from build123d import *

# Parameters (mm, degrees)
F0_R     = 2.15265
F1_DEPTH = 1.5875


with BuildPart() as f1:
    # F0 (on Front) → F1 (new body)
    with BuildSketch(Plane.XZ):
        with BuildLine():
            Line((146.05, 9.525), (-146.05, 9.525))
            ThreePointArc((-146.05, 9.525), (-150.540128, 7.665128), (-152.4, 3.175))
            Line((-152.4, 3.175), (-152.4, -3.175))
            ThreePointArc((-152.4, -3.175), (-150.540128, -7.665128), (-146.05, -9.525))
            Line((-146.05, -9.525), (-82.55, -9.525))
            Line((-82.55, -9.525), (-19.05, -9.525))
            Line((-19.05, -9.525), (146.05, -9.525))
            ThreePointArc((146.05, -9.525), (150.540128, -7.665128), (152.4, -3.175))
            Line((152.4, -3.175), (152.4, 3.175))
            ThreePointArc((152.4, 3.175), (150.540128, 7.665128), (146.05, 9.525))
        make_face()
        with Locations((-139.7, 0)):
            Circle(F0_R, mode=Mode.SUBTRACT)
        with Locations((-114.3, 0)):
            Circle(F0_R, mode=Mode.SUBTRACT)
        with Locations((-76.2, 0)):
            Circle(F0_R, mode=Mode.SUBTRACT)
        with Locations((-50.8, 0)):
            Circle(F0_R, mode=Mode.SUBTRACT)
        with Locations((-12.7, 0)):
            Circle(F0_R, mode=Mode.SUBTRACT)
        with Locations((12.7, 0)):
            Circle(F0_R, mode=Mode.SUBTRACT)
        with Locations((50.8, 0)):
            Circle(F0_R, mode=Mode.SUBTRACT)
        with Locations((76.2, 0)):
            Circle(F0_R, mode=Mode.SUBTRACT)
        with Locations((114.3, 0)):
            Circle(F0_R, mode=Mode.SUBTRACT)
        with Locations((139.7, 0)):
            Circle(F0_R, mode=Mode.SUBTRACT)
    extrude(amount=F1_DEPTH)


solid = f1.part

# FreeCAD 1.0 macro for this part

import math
import FreeCAD as App
import Part
import Sketcher
Q = App.Units.Quantity

doc = App.newDocument("Part")
body = doc.addObject("PartDesign::Body", "Body")

# Sketch on XZ plane
sketch1 = body.newObject("Sketcher::SketchObject", "Sketch")
sketch1.AttachmentSupport = (doc.getObject("XZ_Plane"), [""])
sketch1.MapMode = "FlatFace"
sketch1.addGeometry(Part.LineSegment(App.Vector(146.1, 9.5, 0), App.Vector(-146.1, 9.5, 0)), False)
sketch1.addGeometry(Part.ArcOfCircle(Part.Circle(App.Vector(-146, 3.2, 0), App.Vector(0, 0, 1), 6.4), math.radians(90), math.radians(180)), False)
sketch1.addGeometry(Part.LineSegment(App.Vector(-152.4, 3.2, 0), App.Vector(-152.4, -3.2, 0)), False)
sketch1.addGeometry(Part.ArcOfCircle(Part.Circle(App.Vector(-146, -3.2, 0), App.Vector(0, 0, 1), 6.4), math.radians(-180), math.radians(-90)), False)
sketch1.addGeometry(Part.LineSegment(App.Vector(-146.1, -9.5, 0), App.Vector(146.1, -9.5, 0)), False)
sketch1.addGeometry(Part.ArcOfCircle(Part.Circle(App.Vector(146, -3.2, 0), App.Vector(0, 0, 1), 6.4), math.radians(-90), math.radians(0)), False)
sketch1.addGeometry(Part.LineSegment(App.Vector(152.4, -3.2, 0), App.Vector(152.4, 3.2, 0)), False)
sketch1.addGeometry(Part.ArcOfCircle(Part.Circle(App.Vector(146, 3.2, 0), App.Vector(0, 0, 1), 6.4), math.radians(0), math.radians(90)), False)
sketch1.addGeometry(Part.Circle(App.Vector(-139.7, 0, 0), App.Vector(0, 0, 1), 2.2), False)
sketch1.addGeometry(Part.Circle(App.Vector(-114.3, 0, 0), App.Vector(0, 0, 1), 2.2), False)
sketch1.addGeometry(Part.Circle(App.Vector(-76.2, 0, 0), App.Vector(0, 0, 1), 2.2), False)
sketch1.addGeometry(Part.Circle(App.Vector(-50.8, 0, 0), App.Vector(0, 0, 1), 2.2), False)
sketch1.addGeometry(Part.Circle(App.Vector(-12.7, 0, 0), App.Vector(0, 0, 1), 2.2), False)
sketch1.addGeometry(Part.Circle(App.Vector(12.7, 0, 0), App.Vector(0, 0, 1), 2.2), False)
sketch1.addGeometry(Part.Circle(App.Vector(50.8, 0, 0), App.Vector(0, 0, 1), 2.2), False)
sketch1.addGeometry(Part.Circle(App.Vector(76.2, 0, 0), App.Vector(0, 0, 1), 2.2), False)
sketch1.addGeometry(Part.Circle(App.Vector(114.3, 0, 0), App.Vector(0, 0, 1), 2.2), False)
sketch1.addGeometry(Part.Circle(App.Vector(139.7, 0, 0), App.Vector(0, 0, 1), 2.2), False)
sketch1.addConstraint(Sketcher.Constraint("Tangent", 0, 2, 1, 1))
sketch1.addConstraint(Sketcher.Constraint("Tangent", 1, 2, 2, 1))
sketch1.addConstraint(Sketcher.Constraint("Tangent", 2, 2, 3, 1))
sketch1.addConstraint(Sketcher.Constraint("Tangent", 3, 2, 4, 1))
sketch1.addConstraint(Sketcher.Constraint("Tangent", 4, 2, 5, 1))
sketch1.addConstraint(Sketcher.Constraint("Tangent", 5, 2, 6, 1))
sketch1.addConstraint(Sketcher.Constraint("Tangent", 6, 2, 7, 1))
sketch1.addConstraint(Sketcher.Constraint("Tangent", 7, 2, 0, 1))
sketch1.addConstraint(Sketcher.Constraint("Horizontal", 0))
sketch1.addConstraint(Sketcher.Constraint("Vertical", 2))
sketch1.addConstraint(Sketcher.Constraint("Horizontal", 4))
sketch1.addConstraint(Sketcher.Constraint("Vertical", 6))
sketch1.addConstraint(Sketcher.Constraint("Equal", 1, 3))
sketch1.addConstraint(Sketcher.Constraint("Equal", 3, 5))
sketch1.addConstraint(Sketcher.Constraint("Equal", 5, 7))
sketch1.addConstraint(Sketcher.Constraint("Equal", 8, 9))
sketch1.addConstraint(Sketcher.Constraint("Equal", 9, 10))
sketch1.addConstraint(Sketcher.Constraint("Equal", 10, 11))
sketch1.addConstraint(Sketcher.Constraint("Equal", 11, 12))
sketch1.addConstraint(Sketcher.Constraint("Equal", 12, 13))
sketch1.addConstraint(Sketcher.Constraint("Equal", 13, 14))
sketch1.addConstraint(Sketcher.Constraint("Equal", 14, 15))
sketch1.addConstraint(Sketcher.Constraint("Equal", 15, 16))
sketch1.addConstraint(Sketcher.Constraint("Equal", 16, 17))
sketch1.addConstraint(Sketcher.Constraint("Symmetric", 1, 3, 5, 3, -1, 1))
sketch1.addConstraint(Sketcher.Constraint("Symmetric", 12, 3, 13, 3, -1, 1))
sketch1.addConstraint(Sketcher.Constraint("Symmetric", 11, 3, 14, 3, -1, 1))
sketch1.addConstraint(Sketcher.Constraint("Symmetric", 10, 3, 15, 3, -1, 1))
sketch1.addConstraint(Sketcher.Constraint("Symmetric", 9, 3, 16, 3, -1, 1))
sketch1.addConstraint(Sketcher.Constraint("Symmetric", 8, 3, 17, 3, -1, 1))
sketch1.addConstraint(Sketcher.Constraint("PointOnObject", 8, 3, -1))
sketch1.addConstraint(Sketcher.Constraint("PointOnObject", 9, 3, -1))
sketch1.addConstraint(Sketcher.Constraint("PointOnObject", 10, 3, -1))
sketch1.addConstraint(Sketcher.Constraint("PointOnObject", 11, 3, -1))
sketch1.addConstraint(Sketcher.Constraint("PointOnObject", 12, 3, -1))
sketch1.addConstraint(Sketcher.Constraint("Radius", 1, Q("0.25 in")))
sketch1.addConstraint(Sketcher.Constraint("DistanceX", 0, 2, 0, 1, Q("11.5 in")))
sketch1.addConstraint(Sketcher.Constraint("DistanceX", 10, 3, -1, 1, Q("3 in")))
sketch1.addConstraint(Sketcher.Constraint("DistanceX", 11, 3, -1, 1, Q("2 in")))
sketch1.addConstraint(Sketcher.Constraint("DistanceX", 8, 3, 9, 3, Q("1 in")))
sketch1.addConstraint(Sketcher.Constraint("DistanceX", 9, 3, 12, 3, Q("4 in")))
sketch1.addConstraint(Sketcher.Constraint("DistanceX", 12, 3, 13, 3, Q("1 in")))
sketch1.addConstraint(Sketcher.Constraint("Diameter", 8, Q("0.1695 in")))
sketch1.addConstraint(Sketcher.Constraint("DistanceY", 2, 2, 2, 1, Q("0.25 in")))
pad1 = body.newObject("PartDesign::Pad", "Pad")
pad1.Profile = sketch1
pad1.Length = Q("0.0625 in")

doc.recompute()
